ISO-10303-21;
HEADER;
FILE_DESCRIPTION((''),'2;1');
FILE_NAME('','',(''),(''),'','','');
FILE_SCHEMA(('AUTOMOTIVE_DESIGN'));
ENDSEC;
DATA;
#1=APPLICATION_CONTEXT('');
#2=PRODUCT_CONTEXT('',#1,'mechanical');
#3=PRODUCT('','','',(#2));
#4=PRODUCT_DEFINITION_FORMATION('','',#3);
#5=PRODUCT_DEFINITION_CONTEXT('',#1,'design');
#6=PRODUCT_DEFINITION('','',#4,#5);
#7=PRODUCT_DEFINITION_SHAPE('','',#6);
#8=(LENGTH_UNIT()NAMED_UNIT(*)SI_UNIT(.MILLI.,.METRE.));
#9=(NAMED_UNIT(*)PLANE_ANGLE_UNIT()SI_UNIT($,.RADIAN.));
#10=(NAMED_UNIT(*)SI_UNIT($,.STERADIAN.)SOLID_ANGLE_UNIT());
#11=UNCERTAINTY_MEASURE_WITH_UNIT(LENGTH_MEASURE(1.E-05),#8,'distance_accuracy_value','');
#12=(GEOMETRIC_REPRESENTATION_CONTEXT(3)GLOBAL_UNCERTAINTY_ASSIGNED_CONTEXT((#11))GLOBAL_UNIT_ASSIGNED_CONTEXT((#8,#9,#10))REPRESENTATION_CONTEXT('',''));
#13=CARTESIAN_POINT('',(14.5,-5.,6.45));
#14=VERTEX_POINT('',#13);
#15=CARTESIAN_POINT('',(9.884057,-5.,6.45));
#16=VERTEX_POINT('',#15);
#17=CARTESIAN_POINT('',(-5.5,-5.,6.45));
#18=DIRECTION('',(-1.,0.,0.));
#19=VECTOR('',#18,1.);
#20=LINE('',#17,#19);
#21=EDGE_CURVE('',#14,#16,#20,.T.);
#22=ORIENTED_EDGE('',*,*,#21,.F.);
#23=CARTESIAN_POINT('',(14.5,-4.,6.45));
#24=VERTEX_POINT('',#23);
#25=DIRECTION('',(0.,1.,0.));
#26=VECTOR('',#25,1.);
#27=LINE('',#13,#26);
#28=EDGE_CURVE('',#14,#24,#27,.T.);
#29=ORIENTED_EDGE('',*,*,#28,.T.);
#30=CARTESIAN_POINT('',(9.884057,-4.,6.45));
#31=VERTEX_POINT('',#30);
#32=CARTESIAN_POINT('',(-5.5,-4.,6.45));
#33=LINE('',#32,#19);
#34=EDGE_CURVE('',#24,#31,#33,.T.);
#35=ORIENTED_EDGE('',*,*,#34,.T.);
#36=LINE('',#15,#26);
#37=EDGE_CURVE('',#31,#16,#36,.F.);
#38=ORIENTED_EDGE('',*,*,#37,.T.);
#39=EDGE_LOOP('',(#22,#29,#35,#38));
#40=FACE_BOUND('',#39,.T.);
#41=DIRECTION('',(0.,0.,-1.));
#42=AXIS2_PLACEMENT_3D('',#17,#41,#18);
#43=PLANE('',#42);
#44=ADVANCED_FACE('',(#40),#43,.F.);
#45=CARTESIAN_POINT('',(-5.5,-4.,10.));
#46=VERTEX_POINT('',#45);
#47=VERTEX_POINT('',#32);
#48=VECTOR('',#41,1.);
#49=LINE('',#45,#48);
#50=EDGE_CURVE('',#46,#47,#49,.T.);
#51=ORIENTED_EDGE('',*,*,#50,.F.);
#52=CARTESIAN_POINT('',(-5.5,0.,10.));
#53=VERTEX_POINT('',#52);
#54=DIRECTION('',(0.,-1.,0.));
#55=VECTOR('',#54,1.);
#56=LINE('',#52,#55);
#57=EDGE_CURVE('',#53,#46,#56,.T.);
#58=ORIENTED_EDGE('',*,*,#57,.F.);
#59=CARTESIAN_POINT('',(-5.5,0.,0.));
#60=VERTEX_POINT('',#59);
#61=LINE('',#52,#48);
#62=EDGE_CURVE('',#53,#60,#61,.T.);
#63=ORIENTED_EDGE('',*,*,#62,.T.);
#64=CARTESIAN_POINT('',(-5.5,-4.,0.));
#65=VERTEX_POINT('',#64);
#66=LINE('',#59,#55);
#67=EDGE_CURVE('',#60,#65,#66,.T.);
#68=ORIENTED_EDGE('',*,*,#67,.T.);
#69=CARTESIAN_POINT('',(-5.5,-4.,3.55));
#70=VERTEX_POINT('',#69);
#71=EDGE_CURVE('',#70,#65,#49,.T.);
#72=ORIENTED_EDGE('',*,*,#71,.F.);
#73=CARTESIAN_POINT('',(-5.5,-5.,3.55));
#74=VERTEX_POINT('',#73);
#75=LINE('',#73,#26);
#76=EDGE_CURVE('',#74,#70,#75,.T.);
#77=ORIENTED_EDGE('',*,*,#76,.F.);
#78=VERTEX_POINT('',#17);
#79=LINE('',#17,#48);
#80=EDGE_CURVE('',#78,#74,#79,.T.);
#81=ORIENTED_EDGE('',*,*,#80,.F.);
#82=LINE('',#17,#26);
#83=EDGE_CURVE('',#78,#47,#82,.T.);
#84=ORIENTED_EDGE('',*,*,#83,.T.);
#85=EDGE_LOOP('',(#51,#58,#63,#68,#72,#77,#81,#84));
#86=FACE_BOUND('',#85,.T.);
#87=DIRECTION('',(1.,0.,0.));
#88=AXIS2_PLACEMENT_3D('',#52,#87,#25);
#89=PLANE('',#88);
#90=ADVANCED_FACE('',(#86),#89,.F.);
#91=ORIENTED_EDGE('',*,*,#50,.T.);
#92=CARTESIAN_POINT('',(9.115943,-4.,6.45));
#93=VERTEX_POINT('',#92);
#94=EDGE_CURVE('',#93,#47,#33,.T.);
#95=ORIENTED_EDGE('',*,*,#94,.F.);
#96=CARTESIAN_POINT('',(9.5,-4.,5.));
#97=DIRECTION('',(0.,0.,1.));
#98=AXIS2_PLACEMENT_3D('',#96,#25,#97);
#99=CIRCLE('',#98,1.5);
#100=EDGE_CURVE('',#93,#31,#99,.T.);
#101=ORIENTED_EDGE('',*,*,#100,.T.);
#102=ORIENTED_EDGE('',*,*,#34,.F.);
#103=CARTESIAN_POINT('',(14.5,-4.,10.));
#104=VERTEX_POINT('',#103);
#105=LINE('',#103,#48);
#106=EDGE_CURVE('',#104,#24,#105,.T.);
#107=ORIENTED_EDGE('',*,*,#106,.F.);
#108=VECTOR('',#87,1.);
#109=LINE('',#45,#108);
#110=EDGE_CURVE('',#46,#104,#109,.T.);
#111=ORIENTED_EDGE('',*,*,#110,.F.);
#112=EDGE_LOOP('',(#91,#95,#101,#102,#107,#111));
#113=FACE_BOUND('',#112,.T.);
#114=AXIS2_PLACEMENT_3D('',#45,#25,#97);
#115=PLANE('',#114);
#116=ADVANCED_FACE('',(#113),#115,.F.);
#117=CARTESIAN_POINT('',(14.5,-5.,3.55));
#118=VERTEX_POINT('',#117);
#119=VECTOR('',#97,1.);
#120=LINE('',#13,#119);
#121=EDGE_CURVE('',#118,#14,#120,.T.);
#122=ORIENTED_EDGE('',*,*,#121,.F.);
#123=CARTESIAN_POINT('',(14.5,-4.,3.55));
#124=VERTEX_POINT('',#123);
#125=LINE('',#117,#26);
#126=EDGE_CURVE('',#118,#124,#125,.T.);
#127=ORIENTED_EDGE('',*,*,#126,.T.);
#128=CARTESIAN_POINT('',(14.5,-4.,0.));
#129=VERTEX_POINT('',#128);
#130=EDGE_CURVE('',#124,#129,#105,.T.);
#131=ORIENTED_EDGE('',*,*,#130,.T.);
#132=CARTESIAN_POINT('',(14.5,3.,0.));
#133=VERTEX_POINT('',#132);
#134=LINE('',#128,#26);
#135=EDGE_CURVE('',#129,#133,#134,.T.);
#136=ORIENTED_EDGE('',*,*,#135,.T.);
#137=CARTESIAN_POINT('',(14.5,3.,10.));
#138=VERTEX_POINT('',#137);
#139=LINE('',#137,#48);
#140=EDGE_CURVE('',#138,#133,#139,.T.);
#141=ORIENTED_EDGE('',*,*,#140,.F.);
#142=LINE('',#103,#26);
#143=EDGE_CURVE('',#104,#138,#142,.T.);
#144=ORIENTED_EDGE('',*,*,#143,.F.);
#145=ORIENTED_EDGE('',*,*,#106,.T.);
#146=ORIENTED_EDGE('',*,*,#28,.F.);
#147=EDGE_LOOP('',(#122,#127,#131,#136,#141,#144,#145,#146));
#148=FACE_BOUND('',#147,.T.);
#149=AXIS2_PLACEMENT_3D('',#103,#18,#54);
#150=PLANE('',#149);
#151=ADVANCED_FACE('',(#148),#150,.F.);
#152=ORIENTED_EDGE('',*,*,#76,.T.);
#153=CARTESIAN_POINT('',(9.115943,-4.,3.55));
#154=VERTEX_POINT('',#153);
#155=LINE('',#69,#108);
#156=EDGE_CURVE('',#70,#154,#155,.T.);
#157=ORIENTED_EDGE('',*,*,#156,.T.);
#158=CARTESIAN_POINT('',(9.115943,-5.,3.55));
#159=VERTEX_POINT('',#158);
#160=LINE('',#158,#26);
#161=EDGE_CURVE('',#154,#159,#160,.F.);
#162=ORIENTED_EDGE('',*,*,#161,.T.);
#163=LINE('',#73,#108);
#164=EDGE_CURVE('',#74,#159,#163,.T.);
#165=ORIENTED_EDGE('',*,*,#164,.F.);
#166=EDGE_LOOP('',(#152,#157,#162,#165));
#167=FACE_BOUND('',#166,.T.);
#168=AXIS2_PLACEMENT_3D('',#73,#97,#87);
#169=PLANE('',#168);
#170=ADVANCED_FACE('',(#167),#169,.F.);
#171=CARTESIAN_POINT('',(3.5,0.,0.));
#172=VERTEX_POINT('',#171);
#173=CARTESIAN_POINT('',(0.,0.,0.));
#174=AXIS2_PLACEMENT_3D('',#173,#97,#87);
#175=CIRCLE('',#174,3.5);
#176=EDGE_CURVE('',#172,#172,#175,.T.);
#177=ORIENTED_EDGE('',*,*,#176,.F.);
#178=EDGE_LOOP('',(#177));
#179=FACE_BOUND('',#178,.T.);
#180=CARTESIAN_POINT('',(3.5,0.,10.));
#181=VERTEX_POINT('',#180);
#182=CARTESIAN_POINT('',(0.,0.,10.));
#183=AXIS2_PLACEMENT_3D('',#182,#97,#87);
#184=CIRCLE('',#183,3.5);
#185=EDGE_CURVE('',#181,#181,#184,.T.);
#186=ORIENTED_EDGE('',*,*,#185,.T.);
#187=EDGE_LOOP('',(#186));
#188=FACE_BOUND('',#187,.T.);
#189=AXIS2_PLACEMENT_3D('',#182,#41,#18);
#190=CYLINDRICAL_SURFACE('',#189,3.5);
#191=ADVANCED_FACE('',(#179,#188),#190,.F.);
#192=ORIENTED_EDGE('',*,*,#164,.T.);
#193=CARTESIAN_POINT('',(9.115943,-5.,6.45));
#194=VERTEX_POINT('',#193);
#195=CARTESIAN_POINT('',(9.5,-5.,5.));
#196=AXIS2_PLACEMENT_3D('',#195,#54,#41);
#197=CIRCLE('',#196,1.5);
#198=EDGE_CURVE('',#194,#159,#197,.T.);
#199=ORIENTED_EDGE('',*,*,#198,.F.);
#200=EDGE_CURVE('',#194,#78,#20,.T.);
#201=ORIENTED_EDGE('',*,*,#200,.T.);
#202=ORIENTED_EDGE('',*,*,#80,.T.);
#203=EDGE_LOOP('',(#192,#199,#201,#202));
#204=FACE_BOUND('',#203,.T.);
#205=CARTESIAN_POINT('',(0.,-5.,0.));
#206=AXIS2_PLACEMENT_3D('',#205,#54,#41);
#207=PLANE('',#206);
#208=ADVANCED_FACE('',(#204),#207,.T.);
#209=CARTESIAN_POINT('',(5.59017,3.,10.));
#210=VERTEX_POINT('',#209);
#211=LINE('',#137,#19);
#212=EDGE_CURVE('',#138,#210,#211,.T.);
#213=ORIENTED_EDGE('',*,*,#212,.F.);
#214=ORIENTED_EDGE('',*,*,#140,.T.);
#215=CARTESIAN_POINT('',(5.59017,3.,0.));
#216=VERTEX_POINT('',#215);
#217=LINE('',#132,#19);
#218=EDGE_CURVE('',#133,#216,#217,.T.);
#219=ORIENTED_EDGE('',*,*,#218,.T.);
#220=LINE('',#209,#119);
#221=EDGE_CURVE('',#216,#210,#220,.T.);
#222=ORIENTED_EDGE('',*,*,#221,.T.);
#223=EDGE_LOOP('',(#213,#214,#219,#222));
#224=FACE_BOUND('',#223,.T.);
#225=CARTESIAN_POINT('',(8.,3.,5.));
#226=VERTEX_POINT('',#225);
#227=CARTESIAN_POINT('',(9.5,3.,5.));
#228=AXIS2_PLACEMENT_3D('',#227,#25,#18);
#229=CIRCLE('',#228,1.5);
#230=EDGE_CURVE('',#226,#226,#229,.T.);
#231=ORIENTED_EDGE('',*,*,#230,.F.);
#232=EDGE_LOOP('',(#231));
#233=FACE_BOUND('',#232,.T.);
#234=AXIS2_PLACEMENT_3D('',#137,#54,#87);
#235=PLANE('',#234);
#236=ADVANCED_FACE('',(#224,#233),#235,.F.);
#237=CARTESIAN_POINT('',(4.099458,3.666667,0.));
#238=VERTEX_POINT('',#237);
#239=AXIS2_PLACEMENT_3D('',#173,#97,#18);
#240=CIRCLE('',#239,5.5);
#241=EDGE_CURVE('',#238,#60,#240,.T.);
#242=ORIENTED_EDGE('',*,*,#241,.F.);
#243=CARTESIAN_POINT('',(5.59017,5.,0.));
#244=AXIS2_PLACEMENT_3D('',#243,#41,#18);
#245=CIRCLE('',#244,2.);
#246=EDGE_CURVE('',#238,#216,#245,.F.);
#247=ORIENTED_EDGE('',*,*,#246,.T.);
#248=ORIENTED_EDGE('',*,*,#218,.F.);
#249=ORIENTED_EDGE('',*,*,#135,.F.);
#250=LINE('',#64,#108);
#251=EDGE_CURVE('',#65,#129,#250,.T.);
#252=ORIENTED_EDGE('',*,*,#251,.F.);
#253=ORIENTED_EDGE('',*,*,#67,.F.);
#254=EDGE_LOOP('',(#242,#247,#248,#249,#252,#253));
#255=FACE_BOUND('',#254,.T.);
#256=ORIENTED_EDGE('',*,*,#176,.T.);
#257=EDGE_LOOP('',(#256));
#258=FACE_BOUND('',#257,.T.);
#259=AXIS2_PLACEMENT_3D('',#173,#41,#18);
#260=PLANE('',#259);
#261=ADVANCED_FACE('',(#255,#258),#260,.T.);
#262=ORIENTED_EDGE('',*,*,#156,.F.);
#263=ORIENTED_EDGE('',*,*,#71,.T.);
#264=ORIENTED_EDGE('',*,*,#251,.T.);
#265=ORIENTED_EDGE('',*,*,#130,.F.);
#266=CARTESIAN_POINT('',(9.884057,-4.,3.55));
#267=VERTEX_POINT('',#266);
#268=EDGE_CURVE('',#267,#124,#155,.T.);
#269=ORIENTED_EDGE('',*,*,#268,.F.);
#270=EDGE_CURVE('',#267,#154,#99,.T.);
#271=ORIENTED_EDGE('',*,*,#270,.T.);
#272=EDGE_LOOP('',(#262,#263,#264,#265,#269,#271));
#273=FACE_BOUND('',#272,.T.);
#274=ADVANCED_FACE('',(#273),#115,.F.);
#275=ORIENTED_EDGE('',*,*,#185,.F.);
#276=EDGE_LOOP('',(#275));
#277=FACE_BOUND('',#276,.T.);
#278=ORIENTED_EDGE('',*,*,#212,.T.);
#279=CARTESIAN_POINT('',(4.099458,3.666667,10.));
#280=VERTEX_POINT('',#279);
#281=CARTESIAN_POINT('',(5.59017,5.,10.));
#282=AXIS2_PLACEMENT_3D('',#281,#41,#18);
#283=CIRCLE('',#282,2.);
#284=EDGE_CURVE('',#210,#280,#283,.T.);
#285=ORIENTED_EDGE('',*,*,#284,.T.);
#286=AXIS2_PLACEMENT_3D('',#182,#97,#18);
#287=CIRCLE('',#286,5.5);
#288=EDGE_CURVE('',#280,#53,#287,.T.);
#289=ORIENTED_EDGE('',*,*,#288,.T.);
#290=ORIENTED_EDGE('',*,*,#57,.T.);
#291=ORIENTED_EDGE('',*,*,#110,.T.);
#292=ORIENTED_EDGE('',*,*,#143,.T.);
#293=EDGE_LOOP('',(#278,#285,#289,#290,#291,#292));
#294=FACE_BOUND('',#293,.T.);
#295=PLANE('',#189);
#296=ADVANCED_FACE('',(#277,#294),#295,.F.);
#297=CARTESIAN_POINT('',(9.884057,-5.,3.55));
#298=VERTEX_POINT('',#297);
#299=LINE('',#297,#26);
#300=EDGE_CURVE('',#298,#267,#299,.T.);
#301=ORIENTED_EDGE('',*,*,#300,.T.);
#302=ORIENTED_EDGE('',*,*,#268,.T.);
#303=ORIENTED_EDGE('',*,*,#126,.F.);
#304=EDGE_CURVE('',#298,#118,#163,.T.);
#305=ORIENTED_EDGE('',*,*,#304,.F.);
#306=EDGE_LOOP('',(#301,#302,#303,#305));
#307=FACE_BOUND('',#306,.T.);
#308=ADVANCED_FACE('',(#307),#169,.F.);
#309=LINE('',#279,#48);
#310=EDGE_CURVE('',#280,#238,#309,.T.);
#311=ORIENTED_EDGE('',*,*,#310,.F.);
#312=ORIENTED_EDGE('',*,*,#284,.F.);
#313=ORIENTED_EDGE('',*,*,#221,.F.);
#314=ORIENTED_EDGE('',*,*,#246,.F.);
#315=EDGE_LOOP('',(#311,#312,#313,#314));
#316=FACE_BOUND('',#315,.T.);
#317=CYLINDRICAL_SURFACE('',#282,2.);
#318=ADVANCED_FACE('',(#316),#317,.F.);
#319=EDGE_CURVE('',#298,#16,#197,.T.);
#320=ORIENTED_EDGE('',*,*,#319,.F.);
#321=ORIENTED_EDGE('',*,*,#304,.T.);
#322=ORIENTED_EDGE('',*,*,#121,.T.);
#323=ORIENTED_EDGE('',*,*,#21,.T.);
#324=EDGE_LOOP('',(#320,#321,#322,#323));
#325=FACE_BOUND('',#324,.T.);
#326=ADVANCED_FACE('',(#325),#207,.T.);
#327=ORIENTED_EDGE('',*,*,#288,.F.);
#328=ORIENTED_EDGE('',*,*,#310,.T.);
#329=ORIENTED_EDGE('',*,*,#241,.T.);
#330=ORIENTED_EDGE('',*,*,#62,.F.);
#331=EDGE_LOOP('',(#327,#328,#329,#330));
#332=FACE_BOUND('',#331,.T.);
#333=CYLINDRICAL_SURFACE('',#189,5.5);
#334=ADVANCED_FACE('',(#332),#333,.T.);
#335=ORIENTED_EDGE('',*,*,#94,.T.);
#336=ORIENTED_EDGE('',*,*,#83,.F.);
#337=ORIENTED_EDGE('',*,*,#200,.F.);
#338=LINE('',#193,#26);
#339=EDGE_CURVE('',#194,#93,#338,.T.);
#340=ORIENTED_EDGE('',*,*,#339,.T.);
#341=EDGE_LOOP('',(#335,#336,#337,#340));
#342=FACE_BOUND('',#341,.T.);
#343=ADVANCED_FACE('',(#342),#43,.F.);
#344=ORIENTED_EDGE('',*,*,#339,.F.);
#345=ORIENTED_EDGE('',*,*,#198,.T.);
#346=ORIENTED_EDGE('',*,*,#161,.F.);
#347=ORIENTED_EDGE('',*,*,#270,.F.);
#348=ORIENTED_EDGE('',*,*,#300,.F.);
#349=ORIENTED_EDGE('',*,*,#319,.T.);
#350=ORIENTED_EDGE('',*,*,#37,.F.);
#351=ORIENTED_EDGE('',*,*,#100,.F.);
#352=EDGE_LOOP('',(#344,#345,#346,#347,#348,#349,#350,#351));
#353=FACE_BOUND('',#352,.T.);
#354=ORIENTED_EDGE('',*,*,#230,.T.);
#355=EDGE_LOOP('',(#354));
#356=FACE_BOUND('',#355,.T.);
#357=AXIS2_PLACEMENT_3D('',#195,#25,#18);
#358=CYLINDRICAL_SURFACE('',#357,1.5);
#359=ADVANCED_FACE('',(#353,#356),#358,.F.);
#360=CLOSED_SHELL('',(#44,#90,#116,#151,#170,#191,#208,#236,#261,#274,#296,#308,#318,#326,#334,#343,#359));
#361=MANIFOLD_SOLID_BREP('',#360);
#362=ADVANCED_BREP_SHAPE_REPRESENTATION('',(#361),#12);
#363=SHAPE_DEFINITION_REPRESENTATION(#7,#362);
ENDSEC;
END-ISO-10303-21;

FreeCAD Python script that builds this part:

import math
import FreeCAD as App
import Part
import Sketcher

V = App.Vector


def edges_at(feature, points):
    """Names of the edges that pass closest to the given points."""
    edges = feature.Shape.Edges
    near = lambda p: min(range(len(edges)), key=lambda i: edges[i].distToShape(Part.Vertex(*p))[0])
    return sorted({f"Edge{near(p) + 1}" for p in points})


def add_polygon(sketch, points):
    """Adds a closed chain of lines whose ends are joined by coincident constraints."""
    first, n = sketch.GeometryCount, len(points)
    for a, b in zip(points, points[1:] + points[:1]):
        sketch.addGeometry(Part.LineSegment(App.Vector(*a, 0), App.Vector(*b, 0)), False)
    for i in range(n):
        sketch.addConstraint(Sketcher.Constraint("Coincident", first + i, 2, first + (i + 1) % n, 1))

doc = App.newDocument("Part")
params = doc.addObject("Spreadsheet::Sheet", "Params")
for row, (alias, value) in enumerate([
    ("sketch1_diameter", "7 mm"),
    ("sketch1_radius", "5.5 mm"),
    ("sketch1_width", "20 mm"),
    ("sketch1_height", "4 mm"),
    ("sketch1_height2", "7 mm"),
    ("pad1_length", "10 mm"),
    ("sketch2_width", "20 mm"),
    ("sketch2_height", "2.9 mm"),
    ("pad2_length", "1 mm"),
    ("sketch3_diameter", "3 mm"),
    ("fillet_radius", "2 mm"),
], start=1):
    params.set(f"A{row}", alias)
    params.set(f"B{row}", "=" + value)
    params.setAlias(f"B{row}", alias)

body = doc.addObject("PartDesign::Body", "Body")

# Sketch on XY plane
sketch1 = body.newObject("Sketcher::SketchObject", "Sketch")
sketch1.AttachmentSupport = (doc.getObject("XY_Plane"), [""])
sketch1.MapMode = "FlatFace"
sketch1.addGeometry([
    Part.LineSegment(V(-5.5, 0, 0), V(-5.5, -4, 0)),  # 0
    Part.LineSegment(V(-5.5, -4, 0), V(14.5, -4, 0)),  # 1
    Part.LineSegment(V(14.5, -4, 0), V(14.5, 3, 0)),  # 2
    Part.LineSegment(V(14.5, 3, 0), V(4.609772, 3, 0)),  # 3
    Part.ArcOfCircle(Part.Circle(V(0, 0, 0), V(0, 0, 1), 5.5), math.radians(33.055731), math.radians(180)),  # 4
    Part.Circle(V(0, 0, 0), V(0, 0, 1), 3.5),  # 5
], False)
sketch1.addConstraint([
    Sketcher.Constraint("Coincident", 0, 2, 1, 1),
    Sketcher.Constraint("Coincident", 1, 2, 2, 1),
    Sketcher.Constraint("Coincident", 2, 2, 3, 1),
    Sketcher.Constraint("Coincident", 3, 2, 4, 1),
    Sketcher.Constraint("Tangent", 4, 2, 0, 1),
    Sketcher.Constraint("Vertical", 0),
    Sketcher.Constraint("Horizontal", 1),
    Sketcher.Constraint("Vertical", 2),
    Sketcher.Constraint("Horizontal", 3),
    Sketcher.Constraint("Coincident", 4, 3, -1, 1),
    Sketcher.Constraint("Coincident", 5, 3, -1, 1),
    Sketcher.Constraint("Diameter", 5, 7.0),
    Sketcher.Constraint("Radius", 4, 5.5),
    Sketcher.Constraint("DistanceX", 1, 1, 1, 2, 20.0),
    Sketcher.Constraint("DistanceY", 0, 2, 0, 1, 4.0),
    Sketcher.Constraint("DistanceY", 2, 1, 2, 2, 7.0),
])
sketch1.setExpression("Constraints[11]", "Params.sketch1_diameter")
sketch1.setExpression("Constraints[12]", "Params.sketch1_radius")
sketch1.setExpression("Constraints[13]", "Params.sketch1_width")
sketch1.setExpression("Constraints[14]", "Params.sketch1_height")
sketch1.setExpression("Constraints[15]", "Params.sketch1_height2")
pad1 = body.newObject("PartDesign::Pad", "Pad")
pad1.Profile = sketch1
pad1.setExpression("Length", "Params.pad1_length")

# Sketch on XZ plane
sketch2 = body.newObject("Sketcher::SketchObject", "Sketch001")
sketch2.AttachmentSupport = (doc.getObject("XZ_Plane"), [""])
sketch2.MapMode = "FlatFace"
sketch2.AttachmentOffset = App.Placement(V(0, 0, 4), App.Rotation())
add_polygon(sketch2, [(14.5, 3.55), (14.5, 6.45), (-5.5, 6.45), (-5.5, 3.55)])  # lines 0-3
sketch2.addConstraint([
    Sketcher.Constraint("Vertical", 0),
    Sketcher.Constraint("Horizontal", 1),
    Sketcher.Constraint("Vertical", 2),
    Sketcher.Constraint("Horizontal", 3),
    Sketcher.Constraint("DistanceX", 1, 2, 1, 1, 20.0),
    Sketcher.Constraint("DistanceY", 0, 1, 0, 2, 2.9),
    Sketcher.Constraint("DistanceX", -1, 1, 0, 2, 14.5),
    Sketcher.Constraint("DistanceY", -1, 1, 0, 2, 6.45),
])
sketch2.setExpression("Constraints[8]", "Params.sketch2_width")
sketch2.setExpression("Constraints[9]", "Params.sketch2_height")
pad2 = body.newObject("PartDesign::Pad", "Pad001")
pad2.Profile = sketch2
pad2.setExpression("Length", "Params.pad2_length")

# Sketch on XZ plane
sketch3 = body.newObject("Sketcher::SketchObject", "Sketch002")
sketch3.AttachmentSupport = (doc.getObject("XZ_Plane"), [""])
sketch3.MapMode = "FlatFace"
sketch3.AttachmentOffset = App.Placement(V(0, 0, -3), App.Rotation())
sketch3.addGeometry(Part.Circle(V(9.5, 5, 0), V(0, 0, 1), 1.5), False)
sketch3.addConstraint([
    Sketcher.Constraint("Diameter", 0, 3.0),
    Sketcher.Constraint("DistanceY", -1, 1, 0, 3, 5.0),
    Sketcher.Constraint("DistanceX", -1, 1, 0, 3, 9.5),
])
sketch3.setExpression("Constraints[0]", "Params.sketch3_diameter")
pocket1 = body.newObject("PartDesign::Pocket", "Pocket")
pocket1.Profile = sketch3
pocket1.Type = "ThroughAll"
pocket1.Reversed = True
doc.recompute()

fillet = body.newObject("PartDesign::Fillet", "Fillet")
fillet.Base = (pocket1, edges_at(pocket1, [(4.61, 3, 5)]))
fillet.setExpression("Radius", "Params.fillet_radius")

doc.recompute()
